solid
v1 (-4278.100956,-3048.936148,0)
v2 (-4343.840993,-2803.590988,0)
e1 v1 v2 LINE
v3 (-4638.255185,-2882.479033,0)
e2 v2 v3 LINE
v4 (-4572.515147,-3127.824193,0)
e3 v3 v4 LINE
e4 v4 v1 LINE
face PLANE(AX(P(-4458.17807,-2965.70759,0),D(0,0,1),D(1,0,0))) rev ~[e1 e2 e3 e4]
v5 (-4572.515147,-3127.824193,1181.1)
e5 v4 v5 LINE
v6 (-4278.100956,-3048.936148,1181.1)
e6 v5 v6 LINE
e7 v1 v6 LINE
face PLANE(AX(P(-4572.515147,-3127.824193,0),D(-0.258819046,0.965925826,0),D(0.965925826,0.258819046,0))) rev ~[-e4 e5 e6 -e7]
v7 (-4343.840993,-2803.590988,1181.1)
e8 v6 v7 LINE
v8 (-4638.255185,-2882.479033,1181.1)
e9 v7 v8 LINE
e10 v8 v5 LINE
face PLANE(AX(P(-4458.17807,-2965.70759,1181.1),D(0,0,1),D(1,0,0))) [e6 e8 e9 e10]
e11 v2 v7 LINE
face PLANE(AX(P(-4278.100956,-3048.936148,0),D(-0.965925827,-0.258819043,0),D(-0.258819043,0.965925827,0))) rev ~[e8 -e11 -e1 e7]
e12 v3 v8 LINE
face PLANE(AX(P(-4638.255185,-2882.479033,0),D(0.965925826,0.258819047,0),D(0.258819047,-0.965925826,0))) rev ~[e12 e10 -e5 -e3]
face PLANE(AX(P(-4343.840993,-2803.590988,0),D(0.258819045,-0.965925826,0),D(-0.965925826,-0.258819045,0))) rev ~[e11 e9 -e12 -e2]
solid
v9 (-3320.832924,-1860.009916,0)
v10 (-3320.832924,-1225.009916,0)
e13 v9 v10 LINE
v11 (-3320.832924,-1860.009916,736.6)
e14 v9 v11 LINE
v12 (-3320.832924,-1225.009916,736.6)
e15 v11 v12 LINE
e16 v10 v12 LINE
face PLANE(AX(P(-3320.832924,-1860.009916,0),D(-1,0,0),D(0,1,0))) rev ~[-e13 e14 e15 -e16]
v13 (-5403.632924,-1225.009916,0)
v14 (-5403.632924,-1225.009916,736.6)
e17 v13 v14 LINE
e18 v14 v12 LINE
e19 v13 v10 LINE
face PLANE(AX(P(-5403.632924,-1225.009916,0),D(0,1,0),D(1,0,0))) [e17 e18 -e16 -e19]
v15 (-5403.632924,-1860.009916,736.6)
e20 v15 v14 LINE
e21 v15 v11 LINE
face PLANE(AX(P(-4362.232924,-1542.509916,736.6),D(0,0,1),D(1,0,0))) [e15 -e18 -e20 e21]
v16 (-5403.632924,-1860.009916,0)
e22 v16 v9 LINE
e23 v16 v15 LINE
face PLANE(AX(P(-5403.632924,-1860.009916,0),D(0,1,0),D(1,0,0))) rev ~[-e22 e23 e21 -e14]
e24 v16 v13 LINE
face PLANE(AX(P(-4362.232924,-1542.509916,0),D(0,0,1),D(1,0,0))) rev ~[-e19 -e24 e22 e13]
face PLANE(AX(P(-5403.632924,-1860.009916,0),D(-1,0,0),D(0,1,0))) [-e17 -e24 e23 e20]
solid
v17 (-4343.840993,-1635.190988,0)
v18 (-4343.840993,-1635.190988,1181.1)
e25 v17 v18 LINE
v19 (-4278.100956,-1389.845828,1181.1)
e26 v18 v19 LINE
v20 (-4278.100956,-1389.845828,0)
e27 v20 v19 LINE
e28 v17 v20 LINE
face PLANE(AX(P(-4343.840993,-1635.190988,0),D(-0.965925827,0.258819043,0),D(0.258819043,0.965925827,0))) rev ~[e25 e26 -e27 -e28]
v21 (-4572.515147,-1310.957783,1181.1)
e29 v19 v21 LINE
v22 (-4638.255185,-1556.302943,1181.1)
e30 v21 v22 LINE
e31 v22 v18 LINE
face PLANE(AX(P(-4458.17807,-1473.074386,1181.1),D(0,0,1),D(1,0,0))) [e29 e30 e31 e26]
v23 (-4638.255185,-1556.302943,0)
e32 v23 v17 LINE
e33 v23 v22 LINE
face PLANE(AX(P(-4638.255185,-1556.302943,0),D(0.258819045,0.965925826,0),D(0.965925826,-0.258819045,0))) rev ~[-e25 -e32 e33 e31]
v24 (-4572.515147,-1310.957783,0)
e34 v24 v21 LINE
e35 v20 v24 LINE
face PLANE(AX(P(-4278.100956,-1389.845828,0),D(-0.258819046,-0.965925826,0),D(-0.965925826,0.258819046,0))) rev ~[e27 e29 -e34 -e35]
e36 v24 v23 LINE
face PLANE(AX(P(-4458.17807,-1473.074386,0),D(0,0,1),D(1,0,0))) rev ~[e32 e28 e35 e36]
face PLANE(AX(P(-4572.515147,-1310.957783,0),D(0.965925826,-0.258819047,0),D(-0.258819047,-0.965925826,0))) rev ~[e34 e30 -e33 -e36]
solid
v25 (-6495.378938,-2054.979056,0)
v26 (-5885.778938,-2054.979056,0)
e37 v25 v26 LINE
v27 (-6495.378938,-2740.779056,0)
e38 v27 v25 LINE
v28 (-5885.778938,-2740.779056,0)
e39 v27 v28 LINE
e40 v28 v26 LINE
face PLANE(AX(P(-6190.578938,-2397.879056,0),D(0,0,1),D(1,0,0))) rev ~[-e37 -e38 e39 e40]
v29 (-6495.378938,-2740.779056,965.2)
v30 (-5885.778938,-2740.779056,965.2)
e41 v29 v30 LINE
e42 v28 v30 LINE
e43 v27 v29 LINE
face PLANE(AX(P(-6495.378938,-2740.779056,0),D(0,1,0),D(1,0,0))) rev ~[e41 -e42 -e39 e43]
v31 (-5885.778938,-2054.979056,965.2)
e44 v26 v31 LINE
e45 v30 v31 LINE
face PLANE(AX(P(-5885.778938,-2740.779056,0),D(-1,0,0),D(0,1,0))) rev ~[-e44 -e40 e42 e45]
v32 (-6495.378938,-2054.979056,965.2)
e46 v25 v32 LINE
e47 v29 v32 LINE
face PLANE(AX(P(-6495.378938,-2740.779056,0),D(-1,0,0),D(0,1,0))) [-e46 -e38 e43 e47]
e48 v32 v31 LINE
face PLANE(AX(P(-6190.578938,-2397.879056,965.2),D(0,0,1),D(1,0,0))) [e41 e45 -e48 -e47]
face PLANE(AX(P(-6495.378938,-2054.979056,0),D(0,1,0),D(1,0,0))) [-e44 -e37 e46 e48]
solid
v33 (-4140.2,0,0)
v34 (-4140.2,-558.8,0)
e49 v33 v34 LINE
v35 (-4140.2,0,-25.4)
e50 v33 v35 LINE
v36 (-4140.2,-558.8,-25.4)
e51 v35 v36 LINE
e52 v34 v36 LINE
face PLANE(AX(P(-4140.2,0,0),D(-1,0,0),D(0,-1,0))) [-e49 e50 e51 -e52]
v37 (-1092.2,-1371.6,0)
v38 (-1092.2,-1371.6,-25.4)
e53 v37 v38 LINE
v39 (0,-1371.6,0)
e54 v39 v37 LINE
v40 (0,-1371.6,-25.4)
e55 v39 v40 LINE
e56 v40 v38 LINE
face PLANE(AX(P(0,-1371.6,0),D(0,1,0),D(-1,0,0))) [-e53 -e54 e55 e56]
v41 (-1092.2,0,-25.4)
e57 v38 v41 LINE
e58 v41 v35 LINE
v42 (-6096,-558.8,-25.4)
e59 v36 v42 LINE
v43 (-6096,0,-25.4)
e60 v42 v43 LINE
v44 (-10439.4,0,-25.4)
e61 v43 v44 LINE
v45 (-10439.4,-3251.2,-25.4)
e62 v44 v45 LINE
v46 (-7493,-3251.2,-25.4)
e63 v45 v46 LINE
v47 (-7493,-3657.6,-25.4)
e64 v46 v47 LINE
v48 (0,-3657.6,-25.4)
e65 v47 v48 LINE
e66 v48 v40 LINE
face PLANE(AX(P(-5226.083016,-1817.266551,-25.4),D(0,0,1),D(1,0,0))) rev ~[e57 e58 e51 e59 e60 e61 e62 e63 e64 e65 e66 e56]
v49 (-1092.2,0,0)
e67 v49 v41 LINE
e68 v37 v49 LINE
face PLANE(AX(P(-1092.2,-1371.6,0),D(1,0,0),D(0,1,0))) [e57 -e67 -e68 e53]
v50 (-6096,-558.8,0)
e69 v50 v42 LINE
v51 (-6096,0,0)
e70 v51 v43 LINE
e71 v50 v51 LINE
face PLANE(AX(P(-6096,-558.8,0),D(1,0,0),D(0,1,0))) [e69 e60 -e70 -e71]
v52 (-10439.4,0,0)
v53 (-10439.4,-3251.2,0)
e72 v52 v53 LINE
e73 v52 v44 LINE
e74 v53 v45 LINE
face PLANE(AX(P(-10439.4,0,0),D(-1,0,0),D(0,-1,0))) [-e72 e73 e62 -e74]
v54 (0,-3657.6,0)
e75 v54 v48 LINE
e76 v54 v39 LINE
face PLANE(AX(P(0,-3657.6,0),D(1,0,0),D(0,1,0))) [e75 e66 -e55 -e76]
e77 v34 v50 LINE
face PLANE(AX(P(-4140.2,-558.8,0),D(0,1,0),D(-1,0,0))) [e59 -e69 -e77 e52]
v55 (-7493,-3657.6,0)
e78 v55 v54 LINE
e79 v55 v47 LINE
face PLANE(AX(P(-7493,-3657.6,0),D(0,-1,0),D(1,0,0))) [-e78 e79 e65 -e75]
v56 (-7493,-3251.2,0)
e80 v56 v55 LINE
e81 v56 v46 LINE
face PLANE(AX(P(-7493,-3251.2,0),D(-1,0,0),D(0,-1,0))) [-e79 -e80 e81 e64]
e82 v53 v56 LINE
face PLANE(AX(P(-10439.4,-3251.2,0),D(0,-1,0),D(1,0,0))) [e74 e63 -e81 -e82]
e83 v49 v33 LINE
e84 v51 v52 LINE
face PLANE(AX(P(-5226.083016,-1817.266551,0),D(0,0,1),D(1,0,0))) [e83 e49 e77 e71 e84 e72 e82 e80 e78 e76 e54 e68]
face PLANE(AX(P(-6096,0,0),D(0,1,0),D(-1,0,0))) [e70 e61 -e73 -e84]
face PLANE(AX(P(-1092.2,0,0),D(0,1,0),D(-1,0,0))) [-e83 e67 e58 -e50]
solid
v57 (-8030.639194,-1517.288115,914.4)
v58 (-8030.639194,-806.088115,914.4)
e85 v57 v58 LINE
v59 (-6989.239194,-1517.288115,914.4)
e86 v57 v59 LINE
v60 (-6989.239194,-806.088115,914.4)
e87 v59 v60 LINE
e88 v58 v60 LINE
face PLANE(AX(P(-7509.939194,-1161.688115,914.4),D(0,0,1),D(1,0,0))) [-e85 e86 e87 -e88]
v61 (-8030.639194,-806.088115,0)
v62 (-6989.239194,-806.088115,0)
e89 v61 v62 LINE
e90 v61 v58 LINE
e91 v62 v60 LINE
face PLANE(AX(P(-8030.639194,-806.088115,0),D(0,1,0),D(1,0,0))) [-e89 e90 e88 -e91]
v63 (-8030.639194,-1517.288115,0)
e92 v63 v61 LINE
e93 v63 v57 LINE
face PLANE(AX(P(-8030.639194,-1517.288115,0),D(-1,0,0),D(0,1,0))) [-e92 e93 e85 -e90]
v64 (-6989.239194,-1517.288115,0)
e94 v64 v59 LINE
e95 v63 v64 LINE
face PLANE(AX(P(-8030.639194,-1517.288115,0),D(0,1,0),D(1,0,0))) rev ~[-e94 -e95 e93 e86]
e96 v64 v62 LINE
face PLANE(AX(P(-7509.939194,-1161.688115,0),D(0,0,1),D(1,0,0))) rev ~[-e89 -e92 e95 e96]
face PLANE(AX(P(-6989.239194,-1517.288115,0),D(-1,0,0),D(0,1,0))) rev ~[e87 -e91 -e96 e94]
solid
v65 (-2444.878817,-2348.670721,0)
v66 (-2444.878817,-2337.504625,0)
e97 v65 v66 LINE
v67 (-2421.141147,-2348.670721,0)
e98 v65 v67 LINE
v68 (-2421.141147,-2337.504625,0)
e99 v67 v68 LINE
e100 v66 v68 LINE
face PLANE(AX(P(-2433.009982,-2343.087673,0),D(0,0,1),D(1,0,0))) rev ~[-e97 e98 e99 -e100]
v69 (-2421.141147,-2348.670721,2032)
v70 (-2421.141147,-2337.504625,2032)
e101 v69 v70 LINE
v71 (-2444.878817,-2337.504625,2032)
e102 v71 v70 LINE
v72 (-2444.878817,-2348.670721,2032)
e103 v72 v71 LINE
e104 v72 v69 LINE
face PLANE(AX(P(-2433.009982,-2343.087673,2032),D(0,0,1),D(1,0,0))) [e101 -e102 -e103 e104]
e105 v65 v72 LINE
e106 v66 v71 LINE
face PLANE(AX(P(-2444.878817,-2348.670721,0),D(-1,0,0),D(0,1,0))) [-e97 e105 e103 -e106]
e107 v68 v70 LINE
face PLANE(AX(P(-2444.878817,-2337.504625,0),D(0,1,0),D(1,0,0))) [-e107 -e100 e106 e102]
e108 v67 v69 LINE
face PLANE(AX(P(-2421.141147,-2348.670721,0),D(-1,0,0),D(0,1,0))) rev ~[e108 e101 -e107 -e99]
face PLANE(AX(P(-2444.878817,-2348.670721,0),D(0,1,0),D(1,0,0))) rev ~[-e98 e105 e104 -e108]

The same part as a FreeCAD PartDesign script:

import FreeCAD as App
import Part
import Sketcher
from FreeCAD import Vector
Q = App.Units.Quantity


def add_polygon(sketch, points):
    """Adds a closed chain of lines whose ends are joined by coincident constraints."""
    first, n = sketch.GeometryCount, len(points)
    for a, b in zip(points, points[1:] + points[:1]):
        sketch.addGeometry(Part.LineSegment(App.Vector(*a, 0), App.Vector(*b, 0)), False)
    for i in range(n):
        sketch.addConstraint(Sketcher.Constraint("Coincident", first + i, 2, first + (i + 1) % n, 1))

doc = App.newDocument("Part")
body = doc.addObject("PartDesign::Body", "Body")

sketch1 = body.newObject("Sketcher::SketchObject", "Sketch")
sketch1.AttachmentSupport = (doc.getObject("XY_Plane"), [""])
sketch1.MapMode = "FlatFace"
add_polygon(sketch1, [(-1092, -1372), (-1092, 0), (-4140, 0), (-4140, -559), (-6096, -559), (-6096, 0), (-10439, 0), (-10439, -3251), (-7493, -3251), (-7493, -3658), (0, -3658), (0, -1372)])
sketch1.addConstraint([
    Sketcher.Constraint("Vertical", 0),
    Sketcher.Constraint("Horizontal", 1),
    Sketcher.Constraint("Vertical", 2),
    Sketcher.Constraint("Horizontal", 3),
    Sketcher.Constraint("Vertical", 4),
    Sketcher.Constraint("Horizontal", 5),
    Sketcher.Constraint("Vertical", 6),
    Sketcher.Constraint("Horizontal", 7),
    Sketcher.Constraint("Vertical", 8),
    Sketcher.Constraint("Horizontal", 9),
    Sketcher.Constraint("Vertical", 10),
    Sketcher.Constraint("Horizontal", 11),
    Sketcher.Constraint("PointOnObject", 0, 2, -1),
    Sketcher.Constraint("PointOnObject", 4, 2, -1),
    Sketcher.Constraint("PointOnObject", 9, 2, -2),
    Sketcher.Constraint("DistanceX", 1, 2, 1, 1, Q("120 in")),
    Sketcher.Constraint("DistanceX", 3, 2, 3, 1, Q("77 in")),
    Sketcher.Constraint("DistanceX", 5, 2, 5, 1, Q("171 in")),
    Sketcher.Constraint("DistanceX", 7, 1, 7, 2, Q("116 in")),
    Sketcher.Constraint("DistanceX", 9, 1, 9, 2, Q("295 in")),
    Sketcher.Constraint("DistanceY", 0, 1, 0, 2, Q("54 in")),
    Sketcher.Constraint("DistanceY", 2, 2, 2, 1, Q("22 in")),
    Sketcher.Constraint("DistanceY", 6, 2, 6, 1, Q("128 in")),
    Sketcher.Constraint("DistanceY", 8, 2, 8, 1, Q("16 in")),
])
pad1 = body.newObject("PartDesign::Pad", "Pad")
pad1.Profile = sketch1
pad1.Length = Q("1 in")
pad1.Reversed = True
body2 = doc.addObject("PartDesign::Body", "Body001")

sketch2 = body2.newObject("Sketcher::SketchObject", "Sketch001")
sketch2.AttachmentSupport = (doc.getObject("XY_Plane001"), [""])
sketch2.MapMode = "FlatFace"
add_polygon(sketch2, [(-5404, -1225), (-5404, -1860), (-3321, -1860), (-3321, -1225)])
sketch2.addConstraint([
    Sketcher.Constraint("Vertical", 0),
    Sketcher.Constraint("Horizontal", 1),
    Sketcher.Constraint("Vertical", 2),
    Sketcher.Constraint("Horizontal", 3),
    Sketcher.Constraint("DistanceX", 1, 1, 1, 2, Q("82 in")),
    Sketcher.Constraint("DistanceY", 0, 2, 0, 1, Q("25 in")),
    Sketcher.Constraint("DistanceX", 0, 2, -1, 1, Q("5403.632924 mm")),
    Sketcher.Constraint("DistanceY", 0, 2, -1, 1, Q("1860.009916 mm")),
])
pad2 = body2.newObject("PartDesign::Pad", "Pad001")
pad2.Profile = sketch2
pad2.Length = Q("29 in")
body3 = doc.addObject("PartDesign::Body", "Body002")

sketch3 = body3.newObject("Sketcher::SketchObject", "Sketch002")
sketch3.AttachmentSupport = (doc.getObject("XY_Plane002"), [""])
sketch3.MapMode = "FlatFace"
add_polygon(sketch3, [(-8031, -806), (-8031, -1517), (-6989, -1517), (-6989, -806)])
sketch3.addConstraint([
    Sketcher.Constraint("Vertical", 0),
    Sketcher.Constraint("Horizontal", 1),
    Sketcher.Constraint("Vertical", 2),
    Sketcher.Constraint("Horizontal", 3),
    Sketcher.Constraint("DistanceX", 1, 1, 1, 2, Q("41 in")),
    Sketcher.Constraint("DistanceY", 0, 2, 0, 1, Q("28 in")),
    Sketcher.Constraint("DistanceX", 0, 2, -1, 1, Q("8030.639194 mm")),
    Sketcher.Constraint("DistanceY", 0, 2, -1, 1, Q("1517.288115 mm")),
])
pad3 = body3.newObject("PartDesign::Pad", "Pad002")
pad3.Profile = sketch3
pad3.Length = Q("36 in")
body4 = doc.addObject("PartDesign::Body", "Body003")

sketch4 = body4.newObject("Sketcher::SketchObject", "Sketch003")
sketch4.AttachmentSupport = (doc.getObject("XY_Plane003"), [""])
sketch4.MapMode = "FlatFace"
add_polygon(sketch4, [(-6495, -2055), (-6495, -2741), (-5886, -2741), (-5886, -2055)])
sketch4.addConstraint([
    Sketcher.Constraint("Vertical", 0),
    Sketcher.Constraint("Horizontal", 1),
    Sketcher.Constraint("Vertical", 2),
    Sketcher.Constraint("Horizontal", 3),
    Sketcher.Constraint("DistanceX", 1, 1, 1, 2, Q("24 in")),
    Sketcher.Constraint("DistanceY", 0, 2, 0, 1, Q("27 in")),
    Sketcher.Constraint("DistanceX", 0, 2, -1, 1, Q("6495.378938 mm")),
    Sketcher.Constraint("DistanceY", 0, 2, -1, 1, Q("2740.779056 mm")),
])
pad4 = body4.newObject("PartDesign::Pad", "Pad003")
pad4.Profile = sketch4
pad4.Length = Q("38 in")
body5 = doc.addObject("PartDesign::Body", "Body004")
body5.AllowCompound = True

sketch5 = body5.newObject("Sketcher::SketchObject", "Sketch004")
sketch5.AttachmentSupport = (doc.getObject("XY_Plane004"), [""])
sketch5.MapMode = "FlatFace"
add_polygon(sketch5, [(-4344, -2804), (-4638, -2882), (-4573, -3128), (-4278, -3049)])
add_polygon(sketch5, [(-4278, -1390), (-4573, -1311), (-4638, -1556), (-4344, -1635)])
sketch5.addConstraint([
    Sketcher.Constraint("Perpendicular", 0, 1),
    Sketcher.Constraint("Perpendicular", 1, 2),
    Sketcher.Constraint("Perpendicular", 2, 3),
    Sketcher.Constraint("Perpendicular", 4, 5),
    Sketcher.Constraint("Perpendicular", 5, 6),
    Sketcher.Constraint("Perpendicular", 6, 7),
    Sketcher.Constraint("Vertical", 1, 2, 4, 2),
    Sketcher.Constraint("Vertical", 0, 2, 5, 2),
    Sketcher.Constraint("Vertical", 3, 2, 6, 2),
    Sketcher.Constraint("Equal", 2, 4),
    Sketcher.Constraint("Distance", 0, Q("12 in")),
    Sketcher.Constraint("Distance", 1, Q("10 in")),
    Sketcher.Constraint("Angle", 0, Q("-165 deg")),
    Sketcher.Constraint("DistanceY", 3, 2, 6, 2, Q("46 in")),
    Sketcher.Constraint("DistanceY", 6, 2, -1, 1, Q("1635.190988 mm")),
    Sketcher.Constraint("DistanceX", 0, 2, -1, 1, Q("4638.255185 mm")),
])
pad5 = body5.newObject("PartDesign::Pad", "Pad004")
pad5.Profile = sketch5
pad5.Length = Q("46.5 in")
body6 = doc.addObject("PartDesign::Body", "Body005")

sketch6 = body6.newObject("Sketcher::SketchObject", "Sketch005")
sketch6.AttachmentSupport = (doc.getObject("XY_Plane005"), [""])
sketch6.MapMode = "FlatFace"
add_polygon(sketch6, [(-2445, -2338), (-2445, -2349), (-2421, -2349), (-2421, -2338)])
sketch6.addConstraint([
    Sketcher.Constraint("Vertical", 0),
    Sketcher.Constraint("Horizontal", 1),
    Sketcher.Constraint("Vertical", 2),
    Sketcher.Constraint("Horizontal", 3),
    Sketcher.Constraint("DistanceX", 1, 1, 1, 2, Q("23.737669 mm")),
    Sketcher.Constraint("DistanceY", 0, 2, 0, 1, Q("11.166096 mm")),
    Sketcher.Constraint("DistanceY", 0, 2, -1, 1, Q("2348.670721 mm")),
    Sketcher.Constraint("DistanceX", 0, 2, -1, 1, Q("2444.878817 mm")),
])
pad6 = body6.newObject("PartDesign::Pad", "Pad005")
pad6.Profile = sketch6
pad6.Length = Q("80 in")

doc.recompute()
